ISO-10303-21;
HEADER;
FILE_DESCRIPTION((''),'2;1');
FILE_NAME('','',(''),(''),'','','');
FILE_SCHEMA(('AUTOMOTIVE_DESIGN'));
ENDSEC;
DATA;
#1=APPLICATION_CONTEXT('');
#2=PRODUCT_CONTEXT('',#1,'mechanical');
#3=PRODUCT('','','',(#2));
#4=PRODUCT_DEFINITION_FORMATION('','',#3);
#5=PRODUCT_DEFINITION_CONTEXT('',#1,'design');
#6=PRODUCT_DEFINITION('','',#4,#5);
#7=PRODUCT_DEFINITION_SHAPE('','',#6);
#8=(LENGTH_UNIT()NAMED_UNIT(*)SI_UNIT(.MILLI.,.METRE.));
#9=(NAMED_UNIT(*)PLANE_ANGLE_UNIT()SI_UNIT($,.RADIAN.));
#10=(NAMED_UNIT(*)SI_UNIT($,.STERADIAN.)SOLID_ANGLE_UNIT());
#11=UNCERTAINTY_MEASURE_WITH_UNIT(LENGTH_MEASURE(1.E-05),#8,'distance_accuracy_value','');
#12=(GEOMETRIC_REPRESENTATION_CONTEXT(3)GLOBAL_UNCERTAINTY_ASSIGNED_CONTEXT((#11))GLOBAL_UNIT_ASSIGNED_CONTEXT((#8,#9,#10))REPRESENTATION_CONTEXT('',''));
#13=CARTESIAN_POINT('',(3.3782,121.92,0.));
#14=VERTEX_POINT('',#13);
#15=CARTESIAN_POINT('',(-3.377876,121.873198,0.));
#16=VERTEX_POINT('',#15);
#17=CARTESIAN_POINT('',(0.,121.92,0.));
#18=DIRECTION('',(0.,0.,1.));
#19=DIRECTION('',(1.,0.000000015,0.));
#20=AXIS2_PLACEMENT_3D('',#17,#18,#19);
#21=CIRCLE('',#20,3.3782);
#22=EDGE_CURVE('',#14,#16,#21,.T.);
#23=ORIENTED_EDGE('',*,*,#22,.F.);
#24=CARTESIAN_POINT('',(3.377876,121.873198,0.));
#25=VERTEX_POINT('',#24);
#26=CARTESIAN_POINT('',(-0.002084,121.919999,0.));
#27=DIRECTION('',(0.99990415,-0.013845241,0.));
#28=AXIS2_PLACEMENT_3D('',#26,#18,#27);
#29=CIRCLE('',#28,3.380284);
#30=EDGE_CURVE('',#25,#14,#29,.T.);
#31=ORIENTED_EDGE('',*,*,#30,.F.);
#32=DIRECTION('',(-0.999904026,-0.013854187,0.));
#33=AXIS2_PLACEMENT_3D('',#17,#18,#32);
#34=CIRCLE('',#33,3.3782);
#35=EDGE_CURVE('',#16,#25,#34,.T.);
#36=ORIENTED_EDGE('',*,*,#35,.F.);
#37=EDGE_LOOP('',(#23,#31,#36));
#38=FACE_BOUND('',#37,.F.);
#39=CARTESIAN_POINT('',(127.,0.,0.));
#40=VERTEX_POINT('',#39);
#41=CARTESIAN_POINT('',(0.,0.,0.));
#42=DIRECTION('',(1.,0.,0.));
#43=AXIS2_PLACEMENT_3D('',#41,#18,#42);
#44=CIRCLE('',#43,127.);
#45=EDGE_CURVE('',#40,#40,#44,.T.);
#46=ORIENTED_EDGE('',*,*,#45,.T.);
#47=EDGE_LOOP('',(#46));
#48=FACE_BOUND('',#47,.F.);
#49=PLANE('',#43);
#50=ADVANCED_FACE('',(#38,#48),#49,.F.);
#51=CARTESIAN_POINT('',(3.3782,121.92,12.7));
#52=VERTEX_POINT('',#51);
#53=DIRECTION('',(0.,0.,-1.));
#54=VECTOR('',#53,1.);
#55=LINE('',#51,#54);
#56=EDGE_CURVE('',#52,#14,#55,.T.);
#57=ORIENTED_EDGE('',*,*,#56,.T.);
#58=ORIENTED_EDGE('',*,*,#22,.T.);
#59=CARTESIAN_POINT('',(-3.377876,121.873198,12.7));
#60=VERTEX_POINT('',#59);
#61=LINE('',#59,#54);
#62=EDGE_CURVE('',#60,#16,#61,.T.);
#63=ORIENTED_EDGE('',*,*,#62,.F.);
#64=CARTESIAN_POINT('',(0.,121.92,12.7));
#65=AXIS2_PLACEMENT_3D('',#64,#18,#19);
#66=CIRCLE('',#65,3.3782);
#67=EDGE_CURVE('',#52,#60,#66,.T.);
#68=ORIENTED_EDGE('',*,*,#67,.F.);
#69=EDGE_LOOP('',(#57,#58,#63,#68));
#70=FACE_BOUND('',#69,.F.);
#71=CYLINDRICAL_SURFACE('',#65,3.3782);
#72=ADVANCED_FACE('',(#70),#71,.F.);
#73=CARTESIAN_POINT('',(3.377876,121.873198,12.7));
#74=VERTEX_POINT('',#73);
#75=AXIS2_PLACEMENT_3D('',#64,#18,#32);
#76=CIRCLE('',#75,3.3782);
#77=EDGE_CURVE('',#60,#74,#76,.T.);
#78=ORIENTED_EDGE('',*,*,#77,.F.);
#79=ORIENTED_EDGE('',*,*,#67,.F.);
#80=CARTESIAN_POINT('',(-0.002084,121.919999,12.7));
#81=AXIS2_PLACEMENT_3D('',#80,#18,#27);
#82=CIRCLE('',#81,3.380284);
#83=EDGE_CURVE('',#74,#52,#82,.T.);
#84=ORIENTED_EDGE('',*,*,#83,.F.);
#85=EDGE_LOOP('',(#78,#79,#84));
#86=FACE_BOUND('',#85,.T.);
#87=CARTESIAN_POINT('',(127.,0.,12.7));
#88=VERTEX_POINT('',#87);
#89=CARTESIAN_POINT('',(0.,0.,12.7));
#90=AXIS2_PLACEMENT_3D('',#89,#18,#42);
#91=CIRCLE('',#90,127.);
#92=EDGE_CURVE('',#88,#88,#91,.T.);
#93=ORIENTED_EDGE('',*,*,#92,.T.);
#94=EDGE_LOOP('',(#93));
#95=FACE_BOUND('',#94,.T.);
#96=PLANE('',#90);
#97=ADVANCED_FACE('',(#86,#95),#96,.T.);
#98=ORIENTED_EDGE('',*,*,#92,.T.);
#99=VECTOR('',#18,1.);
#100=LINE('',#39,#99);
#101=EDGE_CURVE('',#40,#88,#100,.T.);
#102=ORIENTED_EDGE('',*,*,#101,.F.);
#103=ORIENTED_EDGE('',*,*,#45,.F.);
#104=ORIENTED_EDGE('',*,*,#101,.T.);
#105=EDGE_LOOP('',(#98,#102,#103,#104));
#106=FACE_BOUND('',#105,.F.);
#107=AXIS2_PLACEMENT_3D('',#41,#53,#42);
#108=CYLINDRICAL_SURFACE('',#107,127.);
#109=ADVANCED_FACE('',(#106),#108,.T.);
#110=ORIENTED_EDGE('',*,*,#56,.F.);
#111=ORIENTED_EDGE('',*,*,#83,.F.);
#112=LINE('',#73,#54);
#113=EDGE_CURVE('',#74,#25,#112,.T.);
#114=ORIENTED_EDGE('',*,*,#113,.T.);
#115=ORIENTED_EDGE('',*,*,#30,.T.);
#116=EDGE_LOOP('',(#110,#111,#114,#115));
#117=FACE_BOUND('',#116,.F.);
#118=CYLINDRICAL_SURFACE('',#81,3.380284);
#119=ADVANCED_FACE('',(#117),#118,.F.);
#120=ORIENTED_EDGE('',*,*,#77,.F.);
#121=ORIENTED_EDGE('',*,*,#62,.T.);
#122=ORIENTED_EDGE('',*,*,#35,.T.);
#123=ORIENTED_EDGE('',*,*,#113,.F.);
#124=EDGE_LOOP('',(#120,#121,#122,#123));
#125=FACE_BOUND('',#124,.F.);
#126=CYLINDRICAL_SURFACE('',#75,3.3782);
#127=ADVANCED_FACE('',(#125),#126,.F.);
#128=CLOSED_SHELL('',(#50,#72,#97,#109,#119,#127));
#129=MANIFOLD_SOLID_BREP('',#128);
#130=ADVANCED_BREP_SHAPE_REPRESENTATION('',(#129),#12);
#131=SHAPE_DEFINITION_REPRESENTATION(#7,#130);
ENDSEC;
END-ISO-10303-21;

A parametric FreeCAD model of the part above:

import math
import FreeCAD as App
import Part
import Sketcher
Q = App.Units.Quantity

doc = App.newDocument("Part")
body = doc.addObject("PartDesign::Body", "Body")

sketch1 = body.newObject("Sketcher::SketchObject", "Sketch")
sketch1.AttachmentSupport = (doc.getObject("XY_Plane"), [""])
sketch1.MapMode = "FlatFace"
sketch1.addGeometry(Part.Circle(App.Vector(0, 0, 0), App.Vector(0, 0, 1), 127), False)
sketch1.addConstraint([
    Sketcher.Constraint("Coincident", 0, 3, -1, 1),
    Sketcher.Constraint("Diameter", 0, Q("10 in")),
])
pad1 = body.newObject("PartDesign::Pad", "Pad")
pad1.Profile = sketch1
pad1.Length = Q("0.5 in")

sketch2 = body.newObject("Sketcher::SketchObject", "Sketch001")
sketch2.AttachmentSupport = (doc.getObject("XY_Plane"), [""])
sketch2.MapMode = "FlatFace"
sketch2.AttachmentOffset = App.Placement(App.Vector(0, 0, 0.5 * 25.4), App.Rotation())
sketch2.addGeometry([
    Part.ArcOfCircle(Part.Circle(App.Vector(0, 121.92, 0), App.Vector(0, 0, 1), 3.378), math.radians(-179), math.radians(-1)),
    Part.ArcOfCircle(Part.Circle(App.Vector(-0.002, 121.92, 0), App.Vector(0, 0, 1), 3.38), math.radians(-0.79), math.radians(0)),
    Part.ArcOfCircle(Part.Circle(App.Vector(0, 121.92, 0), App.Vector(0, 0, 1), 3.378), math.radians(0), math.radians(181)),
], False)
sketch2.addConstraint([
    Sketcher.Constraint("Coincident", 0, 2, 1, 1),
    Sketcher.Constraint("Tangent", 1, 2, 2, 1),
    Sketcher.Constraint("Tangent", 2, 2, 0, 1),
    Sketcher.Constraint("Symmetric", 0, 2, 2, 2, -2),
    Sketcher.Constraint("Horizontal", 2, 3, 1, 2),
    Sketcher.Constraint("Radius", 0, Q("0.133 in")),
    Sketcher.Constraint("DistanceY", -1, 1, 0, 3, Q("4.8 in")),
    Sketcher.Constraint("Radius", 1, Q("3.380284 mm")),
    Sketcher.Constraint("DistanceY", 0, 2, 2, 3, Q("0.046802 mm")),
])
pocket1 = body.newObject("PartDesign::Pocket", "Pocket")
pocket1.Profile = sketch2
pocket1.Type = "ThroughAll"

doc.recompute()
